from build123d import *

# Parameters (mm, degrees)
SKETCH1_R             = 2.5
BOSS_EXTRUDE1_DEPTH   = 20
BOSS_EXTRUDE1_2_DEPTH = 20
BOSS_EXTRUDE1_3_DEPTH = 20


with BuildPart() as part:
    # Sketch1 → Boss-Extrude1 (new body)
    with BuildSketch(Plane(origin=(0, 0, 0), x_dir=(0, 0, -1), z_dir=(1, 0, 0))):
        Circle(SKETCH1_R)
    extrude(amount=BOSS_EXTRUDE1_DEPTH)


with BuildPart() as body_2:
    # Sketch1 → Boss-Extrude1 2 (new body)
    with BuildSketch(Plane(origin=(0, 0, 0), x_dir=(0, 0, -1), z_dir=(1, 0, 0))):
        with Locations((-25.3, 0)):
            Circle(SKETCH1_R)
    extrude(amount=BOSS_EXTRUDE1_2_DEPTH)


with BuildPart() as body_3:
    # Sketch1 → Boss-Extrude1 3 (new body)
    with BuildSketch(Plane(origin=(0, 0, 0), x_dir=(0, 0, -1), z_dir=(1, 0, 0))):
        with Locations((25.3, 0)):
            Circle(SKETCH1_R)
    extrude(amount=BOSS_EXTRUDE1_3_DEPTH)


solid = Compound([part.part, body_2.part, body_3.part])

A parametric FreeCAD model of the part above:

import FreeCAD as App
import Part
import Sketcher
from FreeCAD import Vector
Q = App.Units.Quantity

doc = App.newDocument("Part")
params = doc.addObject("Spreadsheet::Sheet", "Params")
for row, (alias, value) in enumerate([
    ("sketch1_diameter", "5 mm"),
    ("pad1_length", "20 mm"),
    ("sketch2_diameter", "5 mm"),
    ("pad2_length", "20 mm"),
    ("sketch3_diameter", "5 mm"),
    ("pad3_length", "20 mm"),
], start=1):
    params.set(f"A{row}", alias)
    params.set(f"B{row}", "=" + value)
    params.setAlias(f"B{row}", alias)

body = doc.addObject("PartDesign::Body", "Body")

# Sketch on YZ plane
sketch1 = doc.addObject("Sketcher::SketchObject", "Sketch")
body.addObject(sketch1)
sketch1.AttachmentSupport = (doc.YZ_Plane, [""])
sketch1.MapMode = "FlatFace"
sketch1.addGeometry(Part.Circle(Vector(0, 0, 0), Vector(0, 0, 1), 2.5), False)
sketch1.addConstraint([
    Sketcher.Constraint("Coincident", 0, 3, -1, 1),
    Sketcher.Constraint("Diameter", 0, Q("5 mm")),
])
sketch1.setExpression("Constraints[1]", "Params.sketch1_diameter")
pad1 = doc.addObject("PartDesign::Pad", "Pad")
body.addObject(pad1)
pad1.Profile = sketch1
pad1.setExpression("Length", "Params.pad1_length")
body2 = doc.addObject("PartDesign::Body", "Body001")

# Sketch on YZ plane
sketch2 = doc.addObject("Sketcher::SketchObject", "Sketch001")
body2.addObject(sketch2)
sketch2.AttachmentSupport = (doc.getObject("YZ_Plane001"), [""])
sketch2.MapMode = "FlatFace"
sketch2.addGeometry(Part.Circle(Vector(0, 25.3, 0), Vector(0, 0, 1), 2.5), False)
sketch2.addConstraint([
    Sketcher.Constraint("PointOnObject", 0, 3, -2),
    Sketcher.Constraint("Diameter", 0, Q("5 mm")),
    Sketcher.Constraint("DistanceY", -1, 1, 0, 3, Q("25.3 mm")),
])
sketch2.setExpression("Constraints[1]", "Params.sketch2_diameter")
pad2 = doc.addObject("PartDesign::Pad", "Pad001")
body2.addObject(pad2)
pad2.Profile = sketch2
pad2.setExpression("Length", "Params.pad2_length")
body3 = doc.addObject("PartDesign::Body", "Body002")

# Sketch on YZ plane
sketch3 = doc.addObject("Sketcher::SketchObject", "Sketch002")
body3.addObject(sketch3)
sketch3.AttachmentSupport = (doc.getObject("YZ_Plane002"), [""])
sketch3.MapMode = "FlatFace"
sketch3.addGeometry(Part.Circle(Vector(0, -25.3, 0), Vector(0, 0, 1), 2.5), False)
sketch3.addConstraint([
    Sketcher.Constraint("PointOnObject", 0, 3, -2),
    Sketcher.Constraint("Diameter", 0, Q("5 mm")),
    Sketcher.Constraint("DistanceY", 0, 3, -1, 1, Q("25.3 mm")),
])
sketch3.setExpression("Constraints[1]", "Params.sketch3_diameter")
pad3 = doc.addObject("PartDesign::Pad", "Pad002")
body3.addObject(pad3)
pad3.Profile = sketch3
pad3.setExpression("Length", "Params.pad3_length")

doc.recompute()
